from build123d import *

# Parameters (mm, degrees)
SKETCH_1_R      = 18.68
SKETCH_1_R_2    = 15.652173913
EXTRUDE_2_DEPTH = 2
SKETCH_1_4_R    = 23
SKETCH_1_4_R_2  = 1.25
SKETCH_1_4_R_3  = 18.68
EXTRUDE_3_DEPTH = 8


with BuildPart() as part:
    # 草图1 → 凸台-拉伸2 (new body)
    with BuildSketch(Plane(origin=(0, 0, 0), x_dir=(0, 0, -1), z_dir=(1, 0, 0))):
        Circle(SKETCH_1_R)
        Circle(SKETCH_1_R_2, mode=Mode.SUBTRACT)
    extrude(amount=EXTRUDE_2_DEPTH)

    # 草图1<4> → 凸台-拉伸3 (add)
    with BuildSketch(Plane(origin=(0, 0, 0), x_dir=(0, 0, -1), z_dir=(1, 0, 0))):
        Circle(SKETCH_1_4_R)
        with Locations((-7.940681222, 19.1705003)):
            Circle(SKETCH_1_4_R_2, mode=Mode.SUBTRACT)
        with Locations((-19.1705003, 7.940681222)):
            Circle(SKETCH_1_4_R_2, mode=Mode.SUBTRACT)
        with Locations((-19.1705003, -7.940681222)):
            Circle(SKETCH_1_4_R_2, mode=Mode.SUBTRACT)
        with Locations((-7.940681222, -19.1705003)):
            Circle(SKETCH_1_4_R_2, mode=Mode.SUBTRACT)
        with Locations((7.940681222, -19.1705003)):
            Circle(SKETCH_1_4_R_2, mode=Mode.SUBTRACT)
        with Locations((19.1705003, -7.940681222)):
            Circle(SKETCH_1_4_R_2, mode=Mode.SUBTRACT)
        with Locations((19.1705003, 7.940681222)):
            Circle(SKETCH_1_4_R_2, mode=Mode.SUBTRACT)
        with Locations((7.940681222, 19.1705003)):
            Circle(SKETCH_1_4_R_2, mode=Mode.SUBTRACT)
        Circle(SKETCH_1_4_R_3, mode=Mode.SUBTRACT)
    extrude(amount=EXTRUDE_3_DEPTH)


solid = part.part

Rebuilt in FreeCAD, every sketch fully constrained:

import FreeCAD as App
import Part
import Sketcher
from FreeCAD import Vector
Q = App.Units.Quantity

doc = App.newDocument("Part")
body = doc.addObject("PartDesign::Body", "Body")

sketch1 = body.newObject("Sketcher::SketchObject", "Sketch")
sketch1.AttachmentSupport = (doc.getObject("YZ_Plane"), [""])
sketch1.MapMode = "FlatFace"
sketch1.addGeometry([
    Part.Circle(Vector(0, 0, 0), Vector(0, 0, 1), 19),
    Part.Circle(Vector(0, 0, 0), Vector(0, 0, 1), 16),
], False)
sketch1.addConstraint([
    Sketcher.Constraint("Coincident", 0, 3, -1, 1),
    Sketcher.Constraint("Coincident", 1, 3, -1, 1),
    Sketcher.Constraint("Diameter", 0, Q("37.36 mm")),
    Sketcher.Constraint("Diameter", 1, Q("31.304348 mm")),
])
pad1 = body.newObject("PartDesign::Pad", "Pad")
pad1.Profile = sketch1
pad1.Length = 2

sketch2 = body.newObject("Sketcher::SketchObject", "Sketch001")
sketch2.AttachmentSupport = (doc.getObject("YZ_Plane"), [""])
sketch2.MapMode = "FlatFace"
sketch2.addGeometry([
    Part.Circle(Vector(0, 0, 0), Vector(0, 0, 1), 23),
    Part.Circle(Vector(-19.2, 7.9, 0), Vector(0, 0, 1), 1.2),
    Part.Circle(Vector(-7.9, 19.2, 0), Vector(0, 0, 1), 1.2),
    Part.Circle(Vector(0, 0, 0), Vector(0, 0, 1), 18.7),
    Part.Circle(Vector(-19.2, -7.9, 0), Vector(0, 0, 1), 1.2),
    Part.Circle(Vector(-7.9, -19.2, 0), Vector(0, 0, 1), 1.2),
    Part.Circle(Vector(7.9, 19.2, 0), Vector(0, 0, 1), 1.2),
    Part.Circle(Vector(19.2, 7.9, 0), Vector(0, 0, 1), 1.2),
    Part.Circle(Vector(7.9, -19.2, 0), Vector(0, 0, 1), 1.2),
    Part.Circle(Vector(19.2, -7.9, 0), Vector(0, 0, 1), 1.2),
], False)
sketch2.addConstraint([
    Sketcher.Constraint("Coincident", 0, 3, -1, 1),
    Sketcher.Constraint("Coincident", 3, 3, -1, 1),
    Sketcher.Constraint("Equal", 1, 2),
    Sketcher.Constraint("Equal", 2, 4),
    Sketcher.Constraint("Equal", 4, 5),
    Sketcher.Constraint("Equal", 5, 6),
    Sketcher.Constraint("Equal", 6, 7),
    Sketcher.Constraint("Equal", 7, 8),
    Sketcher.Constraint("Equal", 8, 9),
    Sketcher.Constraint("Symmetric", 5, 3, 6, 3, -1, 1),
    Sketcher.Constraint("Symmetric", 4, 3, 7, 3, -1, 1),
    Sketcher.Constraint("Symmetric", 2, 3, 8, 3, -1, 1),
    Sketcher.Constraint("Symmetric", 1, 3, 9, 3, -1, 1),
    Sketcher.Constraint("Symmetric", 2, 3, 6, 3, -2),
    Sketcher.Constraint("Symmetric", 1, 3, 7, 3, -2),
    Sketcher.Constraint("Diameter", 0, Q("46 mm")),
    Sketcher.Constraint("Diameter", 1, Q("2.5 mm")),
    Sketcher.Constraint("Diameter", 3, Q("37.36 mm")),
    Sketcher.Constraint("DistanceY", 5, 3, 2, 3, Q("38.341001 mm")),
    Sketcher.Constraint("DistanceX", 1, 3, 7, 3, Q("38.341001 mm")),
    Sketcher.Constraint("DistanceY", -1, 1, 1, 3, Q("7.940681 mm")),
    Sketcher.Constraint("DistanceX", 2, 3, -1, 1, Q("7.940681 mm")),
])
pad2 = body.newObject("PartDesign::Pad", "Pad001")
pad2.Profile = sketch2
pad2.Length = 8

doc.recompute()
